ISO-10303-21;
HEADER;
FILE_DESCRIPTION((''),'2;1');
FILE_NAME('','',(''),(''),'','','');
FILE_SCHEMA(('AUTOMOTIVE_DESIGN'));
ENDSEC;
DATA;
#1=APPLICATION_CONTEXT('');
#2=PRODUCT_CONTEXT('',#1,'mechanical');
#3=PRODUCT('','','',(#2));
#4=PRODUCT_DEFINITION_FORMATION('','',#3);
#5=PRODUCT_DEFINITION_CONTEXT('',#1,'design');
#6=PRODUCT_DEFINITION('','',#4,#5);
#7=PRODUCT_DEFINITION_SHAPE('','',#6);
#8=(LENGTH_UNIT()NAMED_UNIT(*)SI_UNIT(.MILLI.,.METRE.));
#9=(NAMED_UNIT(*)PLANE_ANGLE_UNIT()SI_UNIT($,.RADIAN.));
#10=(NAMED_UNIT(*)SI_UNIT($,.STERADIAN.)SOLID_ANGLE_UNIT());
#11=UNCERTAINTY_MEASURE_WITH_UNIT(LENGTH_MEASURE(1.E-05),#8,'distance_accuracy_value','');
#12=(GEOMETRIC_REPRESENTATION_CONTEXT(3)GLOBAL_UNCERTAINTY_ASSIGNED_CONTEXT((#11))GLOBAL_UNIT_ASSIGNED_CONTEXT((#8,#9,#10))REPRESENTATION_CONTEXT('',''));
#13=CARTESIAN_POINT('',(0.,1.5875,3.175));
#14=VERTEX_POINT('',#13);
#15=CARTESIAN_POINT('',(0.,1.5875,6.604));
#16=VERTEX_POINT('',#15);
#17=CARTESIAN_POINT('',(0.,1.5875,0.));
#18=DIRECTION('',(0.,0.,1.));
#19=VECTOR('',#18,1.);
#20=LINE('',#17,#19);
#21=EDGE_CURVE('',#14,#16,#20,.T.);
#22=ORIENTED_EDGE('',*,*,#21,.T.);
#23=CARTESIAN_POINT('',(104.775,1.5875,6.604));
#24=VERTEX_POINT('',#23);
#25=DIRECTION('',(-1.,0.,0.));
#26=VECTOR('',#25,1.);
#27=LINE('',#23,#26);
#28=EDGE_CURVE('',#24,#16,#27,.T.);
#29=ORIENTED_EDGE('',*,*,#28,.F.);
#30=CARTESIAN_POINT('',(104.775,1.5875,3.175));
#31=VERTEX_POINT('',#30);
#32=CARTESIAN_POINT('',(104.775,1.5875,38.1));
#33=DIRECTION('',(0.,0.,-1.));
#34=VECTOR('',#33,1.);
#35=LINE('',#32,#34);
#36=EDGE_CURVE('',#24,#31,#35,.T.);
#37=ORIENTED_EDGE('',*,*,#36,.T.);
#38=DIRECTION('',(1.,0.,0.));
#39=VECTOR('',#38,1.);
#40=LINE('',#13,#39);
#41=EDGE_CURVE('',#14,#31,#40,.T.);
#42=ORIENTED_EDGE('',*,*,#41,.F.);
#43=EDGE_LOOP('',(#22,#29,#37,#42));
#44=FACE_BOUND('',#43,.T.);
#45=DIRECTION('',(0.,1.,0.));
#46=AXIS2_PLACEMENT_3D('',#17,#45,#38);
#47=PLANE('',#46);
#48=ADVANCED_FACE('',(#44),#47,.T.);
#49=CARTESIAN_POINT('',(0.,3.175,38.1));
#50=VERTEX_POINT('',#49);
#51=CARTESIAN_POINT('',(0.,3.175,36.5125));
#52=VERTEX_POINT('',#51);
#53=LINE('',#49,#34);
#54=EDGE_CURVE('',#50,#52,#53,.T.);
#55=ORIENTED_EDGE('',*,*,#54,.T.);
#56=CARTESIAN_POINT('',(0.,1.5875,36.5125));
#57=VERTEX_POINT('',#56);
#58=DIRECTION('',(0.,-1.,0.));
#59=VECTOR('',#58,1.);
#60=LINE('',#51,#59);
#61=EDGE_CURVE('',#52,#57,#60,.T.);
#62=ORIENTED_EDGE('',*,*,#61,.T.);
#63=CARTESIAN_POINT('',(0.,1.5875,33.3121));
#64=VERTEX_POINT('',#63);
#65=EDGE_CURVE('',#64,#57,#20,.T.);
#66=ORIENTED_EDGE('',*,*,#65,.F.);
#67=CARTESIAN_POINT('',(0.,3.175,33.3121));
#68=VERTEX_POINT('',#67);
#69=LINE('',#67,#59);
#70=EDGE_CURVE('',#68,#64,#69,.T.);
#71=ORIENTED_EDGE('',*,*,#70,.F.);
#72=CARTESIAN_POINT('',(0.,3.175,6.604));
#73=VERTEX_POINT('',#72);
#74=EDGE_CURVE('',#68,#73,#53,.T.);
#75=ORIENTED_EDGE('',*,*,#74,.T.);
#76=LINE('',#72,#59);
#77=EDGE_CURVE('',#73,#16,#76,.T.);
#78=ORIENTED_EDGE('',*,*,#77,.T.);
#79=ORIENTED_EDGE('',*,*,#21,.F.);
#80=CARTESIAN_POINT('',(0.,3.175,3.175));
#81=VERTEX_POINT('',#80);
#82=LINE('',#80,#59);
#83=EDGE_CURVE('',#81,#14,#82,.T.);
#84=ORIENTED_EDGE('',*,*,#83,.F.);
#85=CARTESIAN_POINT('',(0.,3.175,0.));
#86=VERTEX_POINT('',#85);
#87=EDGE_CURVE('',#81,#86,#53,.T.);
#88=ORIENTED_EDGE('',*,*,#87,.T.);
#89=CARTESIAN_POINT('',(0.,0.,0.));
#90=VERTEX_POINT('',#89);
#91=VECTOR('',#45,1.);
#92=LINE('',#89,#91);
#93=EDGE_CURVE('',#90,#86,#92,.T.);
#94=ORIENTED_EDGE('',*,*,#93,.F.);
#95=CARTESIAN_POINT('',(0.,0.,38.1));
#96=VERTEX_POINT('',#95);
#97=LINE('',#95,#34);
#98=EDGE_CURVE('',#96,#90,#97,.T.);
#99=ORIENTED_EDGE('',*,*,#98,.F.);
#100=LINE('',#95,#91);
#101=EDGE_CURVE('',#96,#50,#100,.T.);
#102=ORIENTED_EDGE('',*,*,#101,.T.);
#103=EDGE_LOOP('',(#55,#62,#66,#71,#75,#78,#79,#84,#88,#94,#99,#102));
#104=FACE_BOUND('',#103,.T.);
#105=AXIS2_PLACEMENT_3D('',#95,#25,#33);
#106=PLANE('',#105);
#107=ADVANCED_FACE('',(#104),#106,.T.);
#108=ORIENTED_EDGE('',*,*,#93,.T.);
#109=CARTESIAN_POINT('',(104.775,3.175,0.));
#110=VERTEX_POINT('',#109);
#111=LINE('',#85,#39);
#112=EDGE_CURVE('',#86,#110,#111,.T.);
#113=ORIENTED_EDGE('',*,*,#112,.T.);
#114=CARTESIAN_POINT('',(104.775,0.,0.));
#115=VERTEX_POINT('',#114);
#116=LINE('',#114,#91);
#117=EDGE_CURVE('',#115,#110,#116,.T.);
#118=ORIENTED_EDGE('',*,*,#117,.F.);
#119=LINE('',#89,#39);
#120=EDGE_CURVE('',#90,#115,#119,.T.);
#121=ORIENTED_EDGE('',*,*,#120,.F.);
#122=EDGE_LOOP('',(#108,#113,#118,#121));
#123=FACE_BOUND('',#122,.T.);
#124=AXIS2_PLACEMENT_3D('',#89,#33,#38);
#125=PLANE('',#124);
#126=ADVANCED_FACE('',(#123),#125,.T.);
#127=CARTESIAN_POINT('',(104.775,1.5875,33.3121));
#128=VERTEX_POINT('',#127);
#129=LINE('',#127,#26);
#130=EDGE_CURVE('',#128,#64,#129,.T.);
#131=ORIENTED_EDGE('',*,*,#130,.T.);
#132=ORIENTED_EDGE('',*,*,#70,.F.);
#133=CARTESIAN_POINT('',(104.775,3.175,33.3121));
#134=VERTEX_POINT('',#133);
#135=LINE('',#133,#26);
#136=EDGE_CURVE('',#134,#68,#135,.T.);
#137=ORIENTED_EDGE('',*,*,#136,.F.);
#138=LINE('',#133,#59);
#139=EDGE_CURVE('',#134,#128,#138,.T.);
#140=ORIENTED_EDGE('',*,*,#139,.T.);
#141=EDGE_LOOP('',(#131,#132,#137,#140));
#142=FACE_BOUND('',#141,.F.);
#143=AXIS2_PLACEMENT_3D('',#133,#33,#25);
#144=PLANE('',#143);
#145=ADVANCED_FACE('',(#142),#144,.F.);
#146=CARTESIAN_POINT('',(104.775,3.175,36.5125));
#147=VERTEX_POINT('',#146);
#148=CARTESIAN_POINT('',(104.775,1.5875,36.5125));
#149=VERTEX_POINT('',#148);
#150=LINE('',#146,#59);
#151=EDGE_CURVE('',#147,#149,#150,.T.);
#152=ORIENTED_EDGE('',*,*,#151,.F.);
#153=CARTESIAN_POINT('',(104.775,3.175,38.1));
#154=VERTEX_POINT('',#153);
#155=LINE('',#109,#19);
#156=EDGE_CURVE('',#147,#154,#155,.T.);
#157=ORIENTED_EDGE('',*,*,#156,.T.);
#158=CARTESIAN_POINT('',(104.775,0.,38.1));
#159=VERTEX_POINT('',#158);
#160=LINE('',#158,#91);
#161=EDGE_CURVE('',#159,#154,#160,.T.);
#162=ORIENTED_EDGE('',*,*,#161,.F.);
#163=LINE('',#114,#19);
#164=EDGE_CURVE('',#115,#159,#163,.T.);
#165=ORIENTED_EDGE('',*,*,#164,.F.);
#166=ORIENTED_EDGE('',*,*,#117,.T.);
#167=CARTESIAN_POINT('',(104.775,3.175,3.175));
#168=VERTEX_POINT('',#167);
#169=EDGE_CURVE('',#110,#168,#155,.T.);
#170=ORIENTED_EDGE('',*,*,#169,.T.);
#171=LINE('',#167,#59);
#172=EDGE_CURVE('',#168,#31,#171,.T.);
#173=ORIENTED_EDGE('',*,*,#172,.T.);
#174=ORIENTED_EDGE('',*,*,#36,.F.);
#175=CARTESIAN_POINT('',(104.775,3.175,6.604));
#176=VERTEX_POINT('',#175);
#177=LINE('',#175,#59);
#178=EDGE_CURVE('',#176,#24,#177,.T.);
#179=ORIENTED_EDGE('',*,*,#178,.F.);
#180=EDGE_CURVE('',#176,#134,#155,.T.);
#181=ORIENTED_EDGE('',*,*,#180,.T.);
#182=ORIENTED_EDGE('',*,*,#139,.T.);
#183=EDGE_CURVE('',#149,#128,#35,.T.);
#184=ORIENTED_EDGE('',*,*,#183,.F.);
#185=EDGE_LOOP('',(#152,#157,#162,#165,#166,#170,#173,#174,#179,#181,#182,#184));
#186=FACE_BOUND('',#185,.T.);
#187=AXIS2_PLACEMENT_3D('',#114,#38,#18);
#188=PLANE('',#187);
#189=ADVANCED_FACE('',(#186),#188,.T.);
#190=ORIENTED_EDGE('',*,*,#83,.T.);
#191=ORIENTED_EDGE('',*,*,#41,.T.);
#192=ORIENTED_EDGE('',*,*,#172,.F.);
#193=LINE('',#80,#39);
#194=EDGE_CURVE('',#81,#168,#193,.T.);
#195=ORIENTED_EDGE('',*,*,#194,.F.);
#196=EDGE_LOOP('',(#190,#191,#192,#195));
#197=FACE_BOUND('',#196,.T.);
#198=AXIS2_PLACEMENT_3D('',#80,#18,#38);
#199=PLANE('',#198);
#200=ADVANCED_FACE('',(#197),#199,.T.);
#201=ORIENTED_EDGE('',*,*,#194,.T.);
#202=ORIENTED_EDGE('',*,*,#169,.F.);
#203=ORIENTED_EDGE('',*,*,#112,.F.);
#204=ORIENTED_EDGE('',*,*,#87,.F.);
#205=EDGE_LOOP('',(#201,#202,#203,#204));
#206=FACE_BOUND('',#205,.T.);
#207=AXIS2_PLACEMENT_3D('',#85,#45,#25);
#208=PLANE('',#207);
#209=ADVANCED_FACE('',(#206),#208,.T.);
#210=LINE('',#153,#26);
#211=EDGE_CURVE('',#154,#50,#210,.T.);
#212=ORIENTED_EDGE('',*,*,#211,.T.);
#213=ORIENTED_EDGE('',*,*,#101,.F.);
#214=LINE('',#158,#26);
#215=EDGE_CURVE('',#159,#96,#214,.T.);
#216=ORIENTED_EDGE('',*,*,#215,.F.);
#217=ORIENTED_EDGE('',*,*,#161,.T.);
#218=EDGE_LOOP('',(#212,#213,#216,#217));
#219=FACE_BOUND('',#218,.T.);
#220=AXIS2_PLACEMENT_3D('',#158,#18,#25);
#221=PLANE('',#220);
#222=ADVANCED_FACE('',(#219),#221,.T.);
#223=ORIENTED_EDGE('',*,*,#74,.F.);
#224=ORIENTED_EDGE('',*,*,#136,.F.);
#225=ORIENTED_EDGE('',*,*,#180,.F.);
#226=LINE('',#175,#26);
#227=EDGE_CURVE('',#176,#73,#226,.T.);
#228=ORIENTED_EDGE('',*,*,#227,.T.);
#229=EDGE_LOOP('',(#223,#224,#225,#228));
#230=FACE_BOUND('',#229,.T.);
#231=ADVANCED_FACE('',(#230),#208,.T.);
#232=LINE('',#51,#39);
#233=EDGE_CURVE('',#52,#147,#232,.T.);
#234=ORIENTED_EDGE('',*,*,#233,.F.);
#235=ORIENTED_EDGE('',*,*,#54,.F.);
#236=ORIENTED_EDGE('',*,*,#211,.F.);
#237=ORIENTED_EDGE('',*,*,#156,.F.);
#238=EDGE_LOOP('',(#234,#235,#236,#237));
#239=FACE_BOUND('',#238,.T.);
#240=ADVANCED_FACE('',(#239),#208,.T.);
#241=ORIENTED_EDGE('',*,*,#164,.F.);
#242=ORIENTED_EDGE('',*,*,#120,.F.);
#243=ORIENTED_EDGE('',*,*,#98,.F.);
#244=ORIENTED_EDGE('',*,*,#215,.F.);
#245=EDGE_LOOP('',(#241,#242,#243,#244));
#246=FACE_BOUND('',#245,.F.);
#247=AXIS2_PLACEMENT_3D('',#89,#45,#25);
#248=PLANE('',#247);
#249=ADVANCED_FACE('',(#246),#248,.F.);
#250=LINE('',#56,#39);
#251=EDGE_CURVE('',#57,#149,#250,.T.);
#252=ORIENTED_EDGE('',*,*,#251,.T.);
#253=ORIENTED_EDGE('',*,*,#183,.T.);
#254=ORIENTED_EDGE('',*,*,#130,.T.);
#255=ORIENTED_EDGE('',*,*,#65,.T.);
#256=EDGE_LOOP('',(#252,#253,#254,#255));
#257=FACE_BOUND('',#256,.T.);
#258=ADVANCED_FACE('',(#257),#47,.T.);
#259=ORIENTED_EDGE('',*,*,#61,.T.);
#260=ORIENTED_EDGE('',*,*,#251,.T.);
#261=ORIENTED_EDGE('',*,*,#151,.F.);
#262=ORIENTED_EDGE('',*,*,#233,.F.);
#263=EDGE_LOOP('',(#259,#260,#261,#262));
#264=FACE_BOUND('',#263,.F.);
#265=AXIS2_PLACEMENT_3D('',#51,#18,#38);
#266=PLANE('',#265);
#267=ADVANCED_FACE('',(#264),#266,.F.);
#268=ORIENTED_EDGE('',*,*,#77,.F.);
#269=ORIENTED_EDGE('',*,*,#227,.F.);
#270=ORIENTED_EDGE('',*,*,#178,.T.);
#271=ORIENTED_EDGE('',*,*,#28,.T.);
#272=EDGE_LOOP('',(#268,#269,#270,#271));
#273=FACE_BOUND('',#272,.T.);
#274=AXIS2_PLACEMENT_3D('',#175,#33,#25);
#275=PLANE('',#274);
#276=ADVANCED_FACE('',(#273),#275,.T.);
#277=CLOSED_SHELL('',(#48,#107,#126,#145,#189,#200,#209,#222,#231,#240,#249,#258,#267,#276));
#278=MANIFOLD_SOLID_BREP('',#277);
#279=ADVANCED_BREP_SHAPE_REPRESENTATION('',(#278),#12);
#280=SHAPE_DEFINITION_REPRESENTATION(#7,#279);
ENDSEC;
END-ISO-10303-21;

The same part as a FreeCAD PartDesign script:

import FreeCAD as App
import Part
import Sketcher

V = App.Vector
Q = App.Units.Quantity


def add_polygon(sketch, points):
    """Adds a closed chain of lines whose ends are joined by coincident constraints."""
    first, n = sketch.GeometryCount, len(points)
    for a, b in zip(points, points[1:] + points[:1]):
        sketch.addGeometry(Part.LineSegment(App.Vector(*a, 0), App.Vector(*b, 0)), False)
    for i in range(n):
        sketch.addConstraint(Sketcher.Constraint("Coincident", first + i, 2, first + (i + 1) % n, 1))

doc = App.newDocument("Part")
body = doc.addObject("PartDesign::Body", "Body")

# Sketch on XZ plane
sketch1 = body.newObject("Sketcher::SketchObject", "Sketch")
sketch1.AttachmentSupport = (doc.getObject("XZ_Plane"), [""])
sketch1.MapMode = "FlatFace"
add_polygon(sketch1, [(105, 0), (0, 0), (0, 38), (105, 38)])  # lines 0-3
sketch1.addConstraint([
    Sketcher.Constraint("Horizontal", 0),
    Sketcher.Constraint("Vertical", 1),
    Sketcher.Constraint("Horizontal", 2),
    Sketcher.Constraint("Vertical", 3),
    Sketcher.Constraint("Coincident", 0, 2, -1, 1),
    Sketcher.Constraint("DistanceY", 1, 1, 1, 2, Q("1.5 in")),
    Sketcher.Constraint("DistanceX", 0, 2, 0, 1, Q("4.125 in")),
])
pad1 = body.newObject("PartDesign::Pad", "Pad")
pad1.Profile = sketch1
pad1.Length = Q("0.125 in")
pad1.Reversed = True

# Sketch on XZ plane
sketch2 = body.newObject("Sketcher::SketchObject", "Sketch001")
sketch2.AttachmentSupport = (doc.getObject("XZ_Plane"), [""])
sketch2.MapMode = "FlatFace"
sketch2.AttachmentOffset = App.Placement(V(0, 0, -0.125 * 25.4), App.Rotation())
add_polygon(sketch2, [(104.8, 6.6), (104.8, 3.2), (0, 3.2), (0, 6.6)])  # lines 0-3
add_polygon(sketch2, [(104.8, 36.5), (104.8, 33.3), (0, 33.3), (0, 36.5)])  # lines 4-7
sketch2.addConstraint([
    Sketcher.Constraint("Vertical", 0),
    Sketcher.Constraint("Horizontal", 1),
    Sketcher.Constraint("Vertical", 2),
    Sketcher.Constraint("Horizontal", 3),
    Sketcher.Constraint("Vertical", 4),
    Sketcher.Constraint("Horizontal", 5),
    Sketcher.Constraint("Vertical", 6),
    Sketcher.Constraint("Horizontal", 7),
    Sketcher.Constraint("PointOnObject", 1, 2, -2),
    Sketcher.Constraint("PointOnObject", 5, 2, -2),
    Sketcher.Constraint("Vertical", 3, 2, 4, 2),
    Sketcher.Constraint("DistanceY", 0, 2, 0, 1, Q("0.135 in")),
    Sketcher.Constraint("DistanceY", 4, 2, 4, 1, Q("0.126 in")),
    Sketcher.Constraint("DistanceY", -1, 1, 0, 2, Q("0.125 in")),
    Sketcher.Constraint("DistanceX", 1, 2, 1, 1, Q("4.125 in")),
    Sketcher.Constraint("DistanceY", -1, 1, 6, 2, Q("1.4375 in")),
])
pocket1 = body.newObject("PartDesign::Pocket", "Pocket")
pocket1.Profile = sketch2
pocket1.Length = Q("0.0625 in")
pocket1.Reversed = True

doc.recompute()
